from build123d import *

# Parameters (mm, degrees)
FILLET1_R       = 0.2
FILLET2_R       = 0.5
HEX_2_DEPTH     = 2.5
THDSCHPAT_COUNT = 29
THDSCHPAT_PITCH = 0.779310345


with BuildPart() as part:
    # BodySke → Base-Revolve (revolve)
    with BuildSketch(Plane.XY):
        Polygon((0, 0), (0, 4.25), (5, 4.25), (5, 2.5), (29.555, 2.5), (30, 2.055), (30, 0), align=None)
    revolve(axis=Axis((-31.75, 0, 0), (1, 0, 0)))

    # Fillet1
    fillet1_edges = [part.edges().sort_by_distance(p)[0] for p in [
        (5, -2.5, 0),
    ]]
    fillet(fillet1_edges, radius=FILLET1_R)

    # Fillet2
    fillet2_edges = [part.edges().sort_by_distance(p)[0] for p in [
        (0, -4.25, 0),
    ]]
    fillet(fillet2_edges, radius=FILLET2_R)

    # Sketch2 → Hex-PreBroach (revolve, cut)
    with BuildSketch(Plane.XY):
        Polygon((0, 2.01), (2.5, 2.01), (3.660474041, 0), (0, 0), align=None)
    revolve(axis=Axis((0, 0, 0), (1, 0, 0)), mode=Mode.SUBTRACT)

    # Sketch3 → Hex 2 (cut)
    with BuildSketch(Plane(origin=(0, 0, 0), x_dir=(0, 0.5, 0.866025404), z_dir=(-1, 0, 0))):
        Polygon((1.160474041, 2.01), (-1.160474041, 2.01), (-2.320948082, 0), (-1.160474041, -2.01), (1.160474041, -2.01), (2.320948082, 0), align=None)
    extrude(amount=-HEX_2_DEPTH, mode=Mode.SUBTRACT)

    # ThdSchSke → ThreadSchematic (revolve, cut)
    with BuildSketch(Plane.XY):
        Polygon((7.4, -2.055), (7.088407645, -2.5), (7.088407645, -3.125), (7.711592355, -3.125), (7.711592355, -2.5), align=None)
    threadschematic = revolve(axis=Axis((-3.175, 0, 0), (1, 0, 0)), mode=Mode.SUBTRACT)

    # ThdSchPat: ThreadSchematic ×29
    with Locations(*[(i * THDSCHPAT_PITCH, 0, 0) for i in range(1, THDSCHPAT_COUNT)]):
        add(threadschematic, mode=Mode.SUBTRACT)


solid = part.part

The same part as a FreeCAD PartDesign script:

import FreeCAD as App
import Part
import Sketcher
Q = App.Units.Quantity


def edges_at(feature, points):
    """Names of the edges that pass closest to the given points."""
    edges = feature.Shape.Edges
    near = lambda p: min(range(len(edges)), key=lambda i: edges[i].distToShape(Part.Vertex(*p))[0])
    return sorted({f"Edge{near(p) + 1}" for p in points})

doc = App.newDocument("Part")
body = doc.addObject("PartDesign::Body", "Body")

sketch1 = body.newObject("Sketcher::SketchObject", "Sketch")
sketch1.AttachmentSupport = (doc.getObject("XY_Plane"), [""])
sketch1.MapMode = "FlatFace"
sketch1.addGeometry(Part.LineSegment(App.Vector(0, 4.2, 0), App.Vector(0, 0, 0)), False)
sketch1.addGeometry(Part.LineSegment(App.Vector(0, 0, 0), App.Vector(30, 0, 0)), False)
sketch1.addGeometry(Part.LineSegment(App.Vector(30, 0, 0), App.Vector(30, 2.1, 0)), False)
sketch1.addGeometry(Part.LineSegment(App.Vector(30, 2.1, 0), App.Vector(29.6, 2.5, 0)), False)
sketch1.addGeometry(Part.LineSegment(App.Vector(29.6, 2.5, 0), App.Vector(5, 2.5, 0)), False)
sketch1.addGeometry(Part.LineSegment(App.Vector(5, 2.5, 0), App.Vector(5, 4.2, 0)), False)
sketch1.addGeometry(Part.LineSegment(App.Vector(5, 4.2, 0), App.Vector(0, 4.2, 0)), False)
sketch1.addConstraint(Sketcher.Constraint("Coincident", 0, 2, 1, 1))
sketch1.addConstraint(Sketcher.Constraint("Coincident", 1, 2, 2, 1))
sketch1.addConstraint(Sketcher.Constraint("Coincident", 2, 2, 3, 1))
sketch1.addConstraint(Sketcher.Constraint("Coincident", 3, 2, 4, 1))
sketch1.addConstraint(Sketcher.Constraint("Coincident", 4, 2, 5, 1))
sketch1.addConstraint(Sketcher.Constraint("Coincident", 5, 2, 6, 1))
sketch1.addConstraint(Sketcher.Constraint("Coincident", 6, 2, 0, 1))
sketch1.addConstraint(Sketcher.Constraint("Vertical", 0))
sketch1.addConstraint(Sketcher.Constraint("Horizontal", 1))
sketch1.addConstraint(Sketcher.Constraint("Vertical", 2))
sketch1.addConstraint(Sketcher.Constraint("Horizontal", 4))
sketch1.addConstraint(Sketcher.Constraint("Vertical", 5))
sketch1.addConstraint(Sketcher.Constraint("Horizontal", 6))
sketch1.addConstraint(Sketcher.Constraint("Coincident", 0, 2, -1, 1))
sketch1.addConstraint(Sketcher.Constraint("DistanceX", 1, 1, 1, 2, Q("30 mm")))
sketch1.addConstraint(Sketcher.Constraint("DistanceX", 6, 2, 6, 1, Q("5 mm")))
sketch1.addConstraint(Sketcher.Constraint("Angle", 3, Q("135 deg")))
sketch1.addConstraint(Sketcher.Constraint("DistanceY", 0, 2, 0, 1, Q("4.25 mm")))
sketch1.addConstraint(Sketcher.Constraint("DistanceY", 5, 1, 5, 2, Q("1.75 mm")))
sketch1.addConstraint(Sketcher.Constraint("DistanceX", 4, 2, 4, 1, Q("24.555 mm")))
revolution = body.newObject("PartDesign::Revolution", "Revolution")
revolution.Profile = sketch1
revolution.ReferenceAxis = (sketch1, ["H_Axis"])
revolution.Angle = 360
doc.recompute()

fillet = body.newObject("PartDesign::Fillet", "Fillet")
fillet.Base = (revolution, edges_at(revolution, [(5, -2.5, 0)]))
fillet.Radius = 0.2
doc.recompute()

fillet2 = body.newObject("PartDesign::Fillet", "Fillet001")
fillet2.Base = (fillet, edges_at(fillet, [(0, -4.25, 0)]))
fillet2.Radius = 0.5

sketch2 = body.newObject("Sketcher::SketchObject", "Sketch001")
sketch2.AttachmentSupport = (doc.getObject("XY_Plane"), [""])
sketch2.MapMode = "FlatFace"
sketch2.addGeometry(Part.LineSegment(App.Vector(2.5, 2, 0), App.Vector(0, 2, 0)), False)
sketch2.addGeometry(Part.LineSegment(App.Vector(0, 2, 0), App.Vector(0, 0, 0)), False)
sketch2.addGeometry(Part.LineSegment(App.Vector(0, 0, 0), App.Vector(3.7, 0, 0)), False)
sketch2.addGeometry(Part.LineSegment(App.Vector(3.7, 0, 0), App.Vector(2.5, 2, 0)), False)
sketch2.addConstraint(Sketcher.Constraint("Coincident", 0, 2, 1, 1))
sketch2.addConstraint(Sketcher.Constraint("Coincident", 1, 2, 2, 1))
sketch2.addConstraint(Sketcher.Constraint("Coincident", 2, 2, 3, 1))
sketch2.addConstraint(Sketcher.Constraint("Coincident", 3, 2, 0, 1))
sketch2.addConstraint(Sketcher.Constraint("Horizontal", 0))
sketch2.addConstraint(Sketcher.Constraint("Vertical", 1))
sketch2.addConstraint(Sketcher.Constraint("Horizontal", 2))
sketch2.addConstraint(Sketcher.Constraint("Coincident", 1, 2, -1, 1))
sketch2.addConstraint(Sketcher.Constraint("Angle", 3, Q("120 deg")))
sketch2.addConstraint(Sketcher.Constraint("DistanceX", 0, 2, 0, 1, Q("2.5 mm")))
sketch2.addConstraint(Sketcher.Constraint("DistanceY", 1, 2, 1, 1, Q("2.01 mm")))
groove = body.newObject("PartDesign::Groove", "Groove")
groove.Profile = sketch2
groove.ReferenceAxis = (sketch2, ["H_Axis"])
groove.Angle = 360

sketch3 = body.newObject("Sketcher::SketchObject", "Sketch002")
sketch3.AttachmentSupport = (doc.getObject("YZ_Plane"), [""])
sketch3.MapMode = "FlatFace"
sketch3.addGeometry(Part.LineSegment(App.Vector(2.3, 0, 0), App.Vector(1.2, -2, 0)), False)
sketch3.addGeometry(Part.LineSegment(App.Vector(1.2, -2, 0), App.Vector(-1.2, -2, 0)), False)
sketch3.addGeometry(Part.LineSegment(App.Vector(-1.2, -2, 0), App.Vector(-2.3, 0, 0)), False)
sketch3.addGeometry(Part.LineSegment(App.Vector(-2.3, 0, 0), App.Vector(-1.2, 2, 0)), False)
sketch3.addGeometry(Part.LineSegment(App.Vector(-1.2, 2, 0), App.Vector(1.2, 2, 0)), False)
sketch3.addGeometry(Part.LineSegment(App.Vector(1.2, 2, 0), App.Vector(2.3, 0, 0)), False)
sketch3.addConstraint(Sketcher.Constraint("Coincident", 0, 2, 1, 1))
sketch3.addConstraint(Sketcher.Constraint("Coincident", 1, 2, 2, 1))
sketch3.addConstraint(Sketcher.Constraint("Coincident", 2, 2, 3, 1))
sketch3.addConstraint(Sketcher.Constraint("Coincident", 3, 2, 4, 1))
sketch3.addConstraint(Sketcher.Constraint("Coincident", 4, 2, 5, 1))
sketch3.addConstraint(Sketcher.Constraint("Coincident", 5, 2, 0, 1))
sketch3.addConstraint(Sketcher.Constraint("Horizontal", 1))
sketch3.addConstraint(Sketcher.Constraint("Horizontal", 4))
sketch3.addConstraint(Sketcher.Constraint("Symmetric", 0, 2, 3, 2, -1, 1))
sketch3.addConstraint(Sketcher.Constraint("Symmetric", 2, 2, 5, 2, -1, 1))
sketch3.addConstraint(Sketcher.Constraint("PointOnObject", 2, 2, -1))
sketch3.addConstraint(Sketcher.Constraint("Parallel", 2, 5))
sketch3.addConstraint(Sketcher.Constraint("Vertical", 1, 2, 3, 2))
sketch3.addConstraint(Sketcher.Constraint("Angle", 0, Q("-120 deg")))
sketch3.addConstraint(Sketcher.Constraint("DistanceY", 0, 2, -1, 1, Q("2.01 mm")))
sketch3.addConstraint(Sketcher.Constraint("DistanceX", 1, 2, 1, 1, Q("2.320948 mm")))
pocket1 = body.newObject("PartDesign::Pocket", "Pocket")
pocket1.Profile = sketch3
pocket1.Length = 2.5
pocket1.Reversed = True

sketch4 = body.newObject("Sketcher::SketchObject", "Sketch003")
sketch4.AttachmentSupport = (doc.getObject("XY_Plane"), [""])
sketch4.MapMode = "FlatFace"
sketch4.addGeometry(Part.LineSegment(App.Vector(7.4, -2.1, 0), App.Vector(7.1, -2.5, 0)), False)
sketch4.addGeometry(Part.LineSegment(App.Vector(7.1, -2.5, 0), App.Vector(7.1, -3.1, 0)), False)
sketch4.addGeometry(Part.LineSegment(App.Vector(7.1, -3.1, 0), App.Vector(7.7, -3.1, 0)), False)
sketch4.addGeometry(Part.LineSegment(App.Vector(7.7, -3.1, 0), App.Vector(7.7, -2.5, 0)), False)
sketch4.addGeometry(Part.LineSegment(App.Vector(7.7, -2.5, 0), App.Vector(7.4, -2.1, 0)), False)
sketch4.addConstraint(Sketcher.Constraint("Coincident", 0, 2, 1, 1))
sketch4.addConstraint(Sketcher.Constraint("Coincident", 1, 2, 2, 1))
sketch4.addConstraint(Sketcher.Constraint("Coincident", 2, 2, 3, 1))
sketch4.addConstraint(Sketcher.Constraint("Coincident", 3, 2, 4, 1))
sketch4.addConstraint(Sketcher.Constraint("Coincident", 4, 2, 0, 1))
sketch4.addConstraint(Sketcher.Constraint("Vertical", 1))
sketch4.addConstraint(Sketcher.Constraint("Horizontal", 2))
sketch4.addConstraint(Sketcher.Constraint("Vertical", 3))
sketch4.addConstraint(Sketcher.Constraint("Horizontal", 0, 2, 3, 2))
sketch4.addConstraint(Sketcher.Constraint("Equal", 0, 4))
sketch4.addConstraint(Sketcher.Constraint("Angle", 0, Q("-125 deg")))
sketch4.addConstraint(Sketcher.Constraint("DistanceY", 0, 2, -1, 1, Q("2.5 mm")))
sketch4.addConstraint(Sketcher.Constraint("DistanceX", -1, 1, 4, 2, Q("7.4 mm")))
sketch4.addConstraint(Sketcher.Constraint("DistanceY", 1, 2, 1, 1, Q("0.625 mm")))
sketch4.addConstraint(Sketcher.Constraint("DistanceY", 2, 2, 4, 2, Q("1.07 mm")))
groove2 = body.newObject("PartDesign::Groove", "Groove001")
groove2.Profile = sketch4
groove2.ReferenceAxis = (sketch4, ["H_Axis"])
groove2.Angle = 360
doc.recompute()

linearpattern = body.newObject("PartDesign::LinearPattern", "LinearPattern")
linearpattern.Originals = [groove2]
linearpattern.Direction = (doc.getObject("X_Axis"), [""])
linearpattern.Mode = "offset"
linearpattern.Offset = 0.77931
linearpattern.Occurrences = 29
body.Tip = linearpattern

doc.recompute()
